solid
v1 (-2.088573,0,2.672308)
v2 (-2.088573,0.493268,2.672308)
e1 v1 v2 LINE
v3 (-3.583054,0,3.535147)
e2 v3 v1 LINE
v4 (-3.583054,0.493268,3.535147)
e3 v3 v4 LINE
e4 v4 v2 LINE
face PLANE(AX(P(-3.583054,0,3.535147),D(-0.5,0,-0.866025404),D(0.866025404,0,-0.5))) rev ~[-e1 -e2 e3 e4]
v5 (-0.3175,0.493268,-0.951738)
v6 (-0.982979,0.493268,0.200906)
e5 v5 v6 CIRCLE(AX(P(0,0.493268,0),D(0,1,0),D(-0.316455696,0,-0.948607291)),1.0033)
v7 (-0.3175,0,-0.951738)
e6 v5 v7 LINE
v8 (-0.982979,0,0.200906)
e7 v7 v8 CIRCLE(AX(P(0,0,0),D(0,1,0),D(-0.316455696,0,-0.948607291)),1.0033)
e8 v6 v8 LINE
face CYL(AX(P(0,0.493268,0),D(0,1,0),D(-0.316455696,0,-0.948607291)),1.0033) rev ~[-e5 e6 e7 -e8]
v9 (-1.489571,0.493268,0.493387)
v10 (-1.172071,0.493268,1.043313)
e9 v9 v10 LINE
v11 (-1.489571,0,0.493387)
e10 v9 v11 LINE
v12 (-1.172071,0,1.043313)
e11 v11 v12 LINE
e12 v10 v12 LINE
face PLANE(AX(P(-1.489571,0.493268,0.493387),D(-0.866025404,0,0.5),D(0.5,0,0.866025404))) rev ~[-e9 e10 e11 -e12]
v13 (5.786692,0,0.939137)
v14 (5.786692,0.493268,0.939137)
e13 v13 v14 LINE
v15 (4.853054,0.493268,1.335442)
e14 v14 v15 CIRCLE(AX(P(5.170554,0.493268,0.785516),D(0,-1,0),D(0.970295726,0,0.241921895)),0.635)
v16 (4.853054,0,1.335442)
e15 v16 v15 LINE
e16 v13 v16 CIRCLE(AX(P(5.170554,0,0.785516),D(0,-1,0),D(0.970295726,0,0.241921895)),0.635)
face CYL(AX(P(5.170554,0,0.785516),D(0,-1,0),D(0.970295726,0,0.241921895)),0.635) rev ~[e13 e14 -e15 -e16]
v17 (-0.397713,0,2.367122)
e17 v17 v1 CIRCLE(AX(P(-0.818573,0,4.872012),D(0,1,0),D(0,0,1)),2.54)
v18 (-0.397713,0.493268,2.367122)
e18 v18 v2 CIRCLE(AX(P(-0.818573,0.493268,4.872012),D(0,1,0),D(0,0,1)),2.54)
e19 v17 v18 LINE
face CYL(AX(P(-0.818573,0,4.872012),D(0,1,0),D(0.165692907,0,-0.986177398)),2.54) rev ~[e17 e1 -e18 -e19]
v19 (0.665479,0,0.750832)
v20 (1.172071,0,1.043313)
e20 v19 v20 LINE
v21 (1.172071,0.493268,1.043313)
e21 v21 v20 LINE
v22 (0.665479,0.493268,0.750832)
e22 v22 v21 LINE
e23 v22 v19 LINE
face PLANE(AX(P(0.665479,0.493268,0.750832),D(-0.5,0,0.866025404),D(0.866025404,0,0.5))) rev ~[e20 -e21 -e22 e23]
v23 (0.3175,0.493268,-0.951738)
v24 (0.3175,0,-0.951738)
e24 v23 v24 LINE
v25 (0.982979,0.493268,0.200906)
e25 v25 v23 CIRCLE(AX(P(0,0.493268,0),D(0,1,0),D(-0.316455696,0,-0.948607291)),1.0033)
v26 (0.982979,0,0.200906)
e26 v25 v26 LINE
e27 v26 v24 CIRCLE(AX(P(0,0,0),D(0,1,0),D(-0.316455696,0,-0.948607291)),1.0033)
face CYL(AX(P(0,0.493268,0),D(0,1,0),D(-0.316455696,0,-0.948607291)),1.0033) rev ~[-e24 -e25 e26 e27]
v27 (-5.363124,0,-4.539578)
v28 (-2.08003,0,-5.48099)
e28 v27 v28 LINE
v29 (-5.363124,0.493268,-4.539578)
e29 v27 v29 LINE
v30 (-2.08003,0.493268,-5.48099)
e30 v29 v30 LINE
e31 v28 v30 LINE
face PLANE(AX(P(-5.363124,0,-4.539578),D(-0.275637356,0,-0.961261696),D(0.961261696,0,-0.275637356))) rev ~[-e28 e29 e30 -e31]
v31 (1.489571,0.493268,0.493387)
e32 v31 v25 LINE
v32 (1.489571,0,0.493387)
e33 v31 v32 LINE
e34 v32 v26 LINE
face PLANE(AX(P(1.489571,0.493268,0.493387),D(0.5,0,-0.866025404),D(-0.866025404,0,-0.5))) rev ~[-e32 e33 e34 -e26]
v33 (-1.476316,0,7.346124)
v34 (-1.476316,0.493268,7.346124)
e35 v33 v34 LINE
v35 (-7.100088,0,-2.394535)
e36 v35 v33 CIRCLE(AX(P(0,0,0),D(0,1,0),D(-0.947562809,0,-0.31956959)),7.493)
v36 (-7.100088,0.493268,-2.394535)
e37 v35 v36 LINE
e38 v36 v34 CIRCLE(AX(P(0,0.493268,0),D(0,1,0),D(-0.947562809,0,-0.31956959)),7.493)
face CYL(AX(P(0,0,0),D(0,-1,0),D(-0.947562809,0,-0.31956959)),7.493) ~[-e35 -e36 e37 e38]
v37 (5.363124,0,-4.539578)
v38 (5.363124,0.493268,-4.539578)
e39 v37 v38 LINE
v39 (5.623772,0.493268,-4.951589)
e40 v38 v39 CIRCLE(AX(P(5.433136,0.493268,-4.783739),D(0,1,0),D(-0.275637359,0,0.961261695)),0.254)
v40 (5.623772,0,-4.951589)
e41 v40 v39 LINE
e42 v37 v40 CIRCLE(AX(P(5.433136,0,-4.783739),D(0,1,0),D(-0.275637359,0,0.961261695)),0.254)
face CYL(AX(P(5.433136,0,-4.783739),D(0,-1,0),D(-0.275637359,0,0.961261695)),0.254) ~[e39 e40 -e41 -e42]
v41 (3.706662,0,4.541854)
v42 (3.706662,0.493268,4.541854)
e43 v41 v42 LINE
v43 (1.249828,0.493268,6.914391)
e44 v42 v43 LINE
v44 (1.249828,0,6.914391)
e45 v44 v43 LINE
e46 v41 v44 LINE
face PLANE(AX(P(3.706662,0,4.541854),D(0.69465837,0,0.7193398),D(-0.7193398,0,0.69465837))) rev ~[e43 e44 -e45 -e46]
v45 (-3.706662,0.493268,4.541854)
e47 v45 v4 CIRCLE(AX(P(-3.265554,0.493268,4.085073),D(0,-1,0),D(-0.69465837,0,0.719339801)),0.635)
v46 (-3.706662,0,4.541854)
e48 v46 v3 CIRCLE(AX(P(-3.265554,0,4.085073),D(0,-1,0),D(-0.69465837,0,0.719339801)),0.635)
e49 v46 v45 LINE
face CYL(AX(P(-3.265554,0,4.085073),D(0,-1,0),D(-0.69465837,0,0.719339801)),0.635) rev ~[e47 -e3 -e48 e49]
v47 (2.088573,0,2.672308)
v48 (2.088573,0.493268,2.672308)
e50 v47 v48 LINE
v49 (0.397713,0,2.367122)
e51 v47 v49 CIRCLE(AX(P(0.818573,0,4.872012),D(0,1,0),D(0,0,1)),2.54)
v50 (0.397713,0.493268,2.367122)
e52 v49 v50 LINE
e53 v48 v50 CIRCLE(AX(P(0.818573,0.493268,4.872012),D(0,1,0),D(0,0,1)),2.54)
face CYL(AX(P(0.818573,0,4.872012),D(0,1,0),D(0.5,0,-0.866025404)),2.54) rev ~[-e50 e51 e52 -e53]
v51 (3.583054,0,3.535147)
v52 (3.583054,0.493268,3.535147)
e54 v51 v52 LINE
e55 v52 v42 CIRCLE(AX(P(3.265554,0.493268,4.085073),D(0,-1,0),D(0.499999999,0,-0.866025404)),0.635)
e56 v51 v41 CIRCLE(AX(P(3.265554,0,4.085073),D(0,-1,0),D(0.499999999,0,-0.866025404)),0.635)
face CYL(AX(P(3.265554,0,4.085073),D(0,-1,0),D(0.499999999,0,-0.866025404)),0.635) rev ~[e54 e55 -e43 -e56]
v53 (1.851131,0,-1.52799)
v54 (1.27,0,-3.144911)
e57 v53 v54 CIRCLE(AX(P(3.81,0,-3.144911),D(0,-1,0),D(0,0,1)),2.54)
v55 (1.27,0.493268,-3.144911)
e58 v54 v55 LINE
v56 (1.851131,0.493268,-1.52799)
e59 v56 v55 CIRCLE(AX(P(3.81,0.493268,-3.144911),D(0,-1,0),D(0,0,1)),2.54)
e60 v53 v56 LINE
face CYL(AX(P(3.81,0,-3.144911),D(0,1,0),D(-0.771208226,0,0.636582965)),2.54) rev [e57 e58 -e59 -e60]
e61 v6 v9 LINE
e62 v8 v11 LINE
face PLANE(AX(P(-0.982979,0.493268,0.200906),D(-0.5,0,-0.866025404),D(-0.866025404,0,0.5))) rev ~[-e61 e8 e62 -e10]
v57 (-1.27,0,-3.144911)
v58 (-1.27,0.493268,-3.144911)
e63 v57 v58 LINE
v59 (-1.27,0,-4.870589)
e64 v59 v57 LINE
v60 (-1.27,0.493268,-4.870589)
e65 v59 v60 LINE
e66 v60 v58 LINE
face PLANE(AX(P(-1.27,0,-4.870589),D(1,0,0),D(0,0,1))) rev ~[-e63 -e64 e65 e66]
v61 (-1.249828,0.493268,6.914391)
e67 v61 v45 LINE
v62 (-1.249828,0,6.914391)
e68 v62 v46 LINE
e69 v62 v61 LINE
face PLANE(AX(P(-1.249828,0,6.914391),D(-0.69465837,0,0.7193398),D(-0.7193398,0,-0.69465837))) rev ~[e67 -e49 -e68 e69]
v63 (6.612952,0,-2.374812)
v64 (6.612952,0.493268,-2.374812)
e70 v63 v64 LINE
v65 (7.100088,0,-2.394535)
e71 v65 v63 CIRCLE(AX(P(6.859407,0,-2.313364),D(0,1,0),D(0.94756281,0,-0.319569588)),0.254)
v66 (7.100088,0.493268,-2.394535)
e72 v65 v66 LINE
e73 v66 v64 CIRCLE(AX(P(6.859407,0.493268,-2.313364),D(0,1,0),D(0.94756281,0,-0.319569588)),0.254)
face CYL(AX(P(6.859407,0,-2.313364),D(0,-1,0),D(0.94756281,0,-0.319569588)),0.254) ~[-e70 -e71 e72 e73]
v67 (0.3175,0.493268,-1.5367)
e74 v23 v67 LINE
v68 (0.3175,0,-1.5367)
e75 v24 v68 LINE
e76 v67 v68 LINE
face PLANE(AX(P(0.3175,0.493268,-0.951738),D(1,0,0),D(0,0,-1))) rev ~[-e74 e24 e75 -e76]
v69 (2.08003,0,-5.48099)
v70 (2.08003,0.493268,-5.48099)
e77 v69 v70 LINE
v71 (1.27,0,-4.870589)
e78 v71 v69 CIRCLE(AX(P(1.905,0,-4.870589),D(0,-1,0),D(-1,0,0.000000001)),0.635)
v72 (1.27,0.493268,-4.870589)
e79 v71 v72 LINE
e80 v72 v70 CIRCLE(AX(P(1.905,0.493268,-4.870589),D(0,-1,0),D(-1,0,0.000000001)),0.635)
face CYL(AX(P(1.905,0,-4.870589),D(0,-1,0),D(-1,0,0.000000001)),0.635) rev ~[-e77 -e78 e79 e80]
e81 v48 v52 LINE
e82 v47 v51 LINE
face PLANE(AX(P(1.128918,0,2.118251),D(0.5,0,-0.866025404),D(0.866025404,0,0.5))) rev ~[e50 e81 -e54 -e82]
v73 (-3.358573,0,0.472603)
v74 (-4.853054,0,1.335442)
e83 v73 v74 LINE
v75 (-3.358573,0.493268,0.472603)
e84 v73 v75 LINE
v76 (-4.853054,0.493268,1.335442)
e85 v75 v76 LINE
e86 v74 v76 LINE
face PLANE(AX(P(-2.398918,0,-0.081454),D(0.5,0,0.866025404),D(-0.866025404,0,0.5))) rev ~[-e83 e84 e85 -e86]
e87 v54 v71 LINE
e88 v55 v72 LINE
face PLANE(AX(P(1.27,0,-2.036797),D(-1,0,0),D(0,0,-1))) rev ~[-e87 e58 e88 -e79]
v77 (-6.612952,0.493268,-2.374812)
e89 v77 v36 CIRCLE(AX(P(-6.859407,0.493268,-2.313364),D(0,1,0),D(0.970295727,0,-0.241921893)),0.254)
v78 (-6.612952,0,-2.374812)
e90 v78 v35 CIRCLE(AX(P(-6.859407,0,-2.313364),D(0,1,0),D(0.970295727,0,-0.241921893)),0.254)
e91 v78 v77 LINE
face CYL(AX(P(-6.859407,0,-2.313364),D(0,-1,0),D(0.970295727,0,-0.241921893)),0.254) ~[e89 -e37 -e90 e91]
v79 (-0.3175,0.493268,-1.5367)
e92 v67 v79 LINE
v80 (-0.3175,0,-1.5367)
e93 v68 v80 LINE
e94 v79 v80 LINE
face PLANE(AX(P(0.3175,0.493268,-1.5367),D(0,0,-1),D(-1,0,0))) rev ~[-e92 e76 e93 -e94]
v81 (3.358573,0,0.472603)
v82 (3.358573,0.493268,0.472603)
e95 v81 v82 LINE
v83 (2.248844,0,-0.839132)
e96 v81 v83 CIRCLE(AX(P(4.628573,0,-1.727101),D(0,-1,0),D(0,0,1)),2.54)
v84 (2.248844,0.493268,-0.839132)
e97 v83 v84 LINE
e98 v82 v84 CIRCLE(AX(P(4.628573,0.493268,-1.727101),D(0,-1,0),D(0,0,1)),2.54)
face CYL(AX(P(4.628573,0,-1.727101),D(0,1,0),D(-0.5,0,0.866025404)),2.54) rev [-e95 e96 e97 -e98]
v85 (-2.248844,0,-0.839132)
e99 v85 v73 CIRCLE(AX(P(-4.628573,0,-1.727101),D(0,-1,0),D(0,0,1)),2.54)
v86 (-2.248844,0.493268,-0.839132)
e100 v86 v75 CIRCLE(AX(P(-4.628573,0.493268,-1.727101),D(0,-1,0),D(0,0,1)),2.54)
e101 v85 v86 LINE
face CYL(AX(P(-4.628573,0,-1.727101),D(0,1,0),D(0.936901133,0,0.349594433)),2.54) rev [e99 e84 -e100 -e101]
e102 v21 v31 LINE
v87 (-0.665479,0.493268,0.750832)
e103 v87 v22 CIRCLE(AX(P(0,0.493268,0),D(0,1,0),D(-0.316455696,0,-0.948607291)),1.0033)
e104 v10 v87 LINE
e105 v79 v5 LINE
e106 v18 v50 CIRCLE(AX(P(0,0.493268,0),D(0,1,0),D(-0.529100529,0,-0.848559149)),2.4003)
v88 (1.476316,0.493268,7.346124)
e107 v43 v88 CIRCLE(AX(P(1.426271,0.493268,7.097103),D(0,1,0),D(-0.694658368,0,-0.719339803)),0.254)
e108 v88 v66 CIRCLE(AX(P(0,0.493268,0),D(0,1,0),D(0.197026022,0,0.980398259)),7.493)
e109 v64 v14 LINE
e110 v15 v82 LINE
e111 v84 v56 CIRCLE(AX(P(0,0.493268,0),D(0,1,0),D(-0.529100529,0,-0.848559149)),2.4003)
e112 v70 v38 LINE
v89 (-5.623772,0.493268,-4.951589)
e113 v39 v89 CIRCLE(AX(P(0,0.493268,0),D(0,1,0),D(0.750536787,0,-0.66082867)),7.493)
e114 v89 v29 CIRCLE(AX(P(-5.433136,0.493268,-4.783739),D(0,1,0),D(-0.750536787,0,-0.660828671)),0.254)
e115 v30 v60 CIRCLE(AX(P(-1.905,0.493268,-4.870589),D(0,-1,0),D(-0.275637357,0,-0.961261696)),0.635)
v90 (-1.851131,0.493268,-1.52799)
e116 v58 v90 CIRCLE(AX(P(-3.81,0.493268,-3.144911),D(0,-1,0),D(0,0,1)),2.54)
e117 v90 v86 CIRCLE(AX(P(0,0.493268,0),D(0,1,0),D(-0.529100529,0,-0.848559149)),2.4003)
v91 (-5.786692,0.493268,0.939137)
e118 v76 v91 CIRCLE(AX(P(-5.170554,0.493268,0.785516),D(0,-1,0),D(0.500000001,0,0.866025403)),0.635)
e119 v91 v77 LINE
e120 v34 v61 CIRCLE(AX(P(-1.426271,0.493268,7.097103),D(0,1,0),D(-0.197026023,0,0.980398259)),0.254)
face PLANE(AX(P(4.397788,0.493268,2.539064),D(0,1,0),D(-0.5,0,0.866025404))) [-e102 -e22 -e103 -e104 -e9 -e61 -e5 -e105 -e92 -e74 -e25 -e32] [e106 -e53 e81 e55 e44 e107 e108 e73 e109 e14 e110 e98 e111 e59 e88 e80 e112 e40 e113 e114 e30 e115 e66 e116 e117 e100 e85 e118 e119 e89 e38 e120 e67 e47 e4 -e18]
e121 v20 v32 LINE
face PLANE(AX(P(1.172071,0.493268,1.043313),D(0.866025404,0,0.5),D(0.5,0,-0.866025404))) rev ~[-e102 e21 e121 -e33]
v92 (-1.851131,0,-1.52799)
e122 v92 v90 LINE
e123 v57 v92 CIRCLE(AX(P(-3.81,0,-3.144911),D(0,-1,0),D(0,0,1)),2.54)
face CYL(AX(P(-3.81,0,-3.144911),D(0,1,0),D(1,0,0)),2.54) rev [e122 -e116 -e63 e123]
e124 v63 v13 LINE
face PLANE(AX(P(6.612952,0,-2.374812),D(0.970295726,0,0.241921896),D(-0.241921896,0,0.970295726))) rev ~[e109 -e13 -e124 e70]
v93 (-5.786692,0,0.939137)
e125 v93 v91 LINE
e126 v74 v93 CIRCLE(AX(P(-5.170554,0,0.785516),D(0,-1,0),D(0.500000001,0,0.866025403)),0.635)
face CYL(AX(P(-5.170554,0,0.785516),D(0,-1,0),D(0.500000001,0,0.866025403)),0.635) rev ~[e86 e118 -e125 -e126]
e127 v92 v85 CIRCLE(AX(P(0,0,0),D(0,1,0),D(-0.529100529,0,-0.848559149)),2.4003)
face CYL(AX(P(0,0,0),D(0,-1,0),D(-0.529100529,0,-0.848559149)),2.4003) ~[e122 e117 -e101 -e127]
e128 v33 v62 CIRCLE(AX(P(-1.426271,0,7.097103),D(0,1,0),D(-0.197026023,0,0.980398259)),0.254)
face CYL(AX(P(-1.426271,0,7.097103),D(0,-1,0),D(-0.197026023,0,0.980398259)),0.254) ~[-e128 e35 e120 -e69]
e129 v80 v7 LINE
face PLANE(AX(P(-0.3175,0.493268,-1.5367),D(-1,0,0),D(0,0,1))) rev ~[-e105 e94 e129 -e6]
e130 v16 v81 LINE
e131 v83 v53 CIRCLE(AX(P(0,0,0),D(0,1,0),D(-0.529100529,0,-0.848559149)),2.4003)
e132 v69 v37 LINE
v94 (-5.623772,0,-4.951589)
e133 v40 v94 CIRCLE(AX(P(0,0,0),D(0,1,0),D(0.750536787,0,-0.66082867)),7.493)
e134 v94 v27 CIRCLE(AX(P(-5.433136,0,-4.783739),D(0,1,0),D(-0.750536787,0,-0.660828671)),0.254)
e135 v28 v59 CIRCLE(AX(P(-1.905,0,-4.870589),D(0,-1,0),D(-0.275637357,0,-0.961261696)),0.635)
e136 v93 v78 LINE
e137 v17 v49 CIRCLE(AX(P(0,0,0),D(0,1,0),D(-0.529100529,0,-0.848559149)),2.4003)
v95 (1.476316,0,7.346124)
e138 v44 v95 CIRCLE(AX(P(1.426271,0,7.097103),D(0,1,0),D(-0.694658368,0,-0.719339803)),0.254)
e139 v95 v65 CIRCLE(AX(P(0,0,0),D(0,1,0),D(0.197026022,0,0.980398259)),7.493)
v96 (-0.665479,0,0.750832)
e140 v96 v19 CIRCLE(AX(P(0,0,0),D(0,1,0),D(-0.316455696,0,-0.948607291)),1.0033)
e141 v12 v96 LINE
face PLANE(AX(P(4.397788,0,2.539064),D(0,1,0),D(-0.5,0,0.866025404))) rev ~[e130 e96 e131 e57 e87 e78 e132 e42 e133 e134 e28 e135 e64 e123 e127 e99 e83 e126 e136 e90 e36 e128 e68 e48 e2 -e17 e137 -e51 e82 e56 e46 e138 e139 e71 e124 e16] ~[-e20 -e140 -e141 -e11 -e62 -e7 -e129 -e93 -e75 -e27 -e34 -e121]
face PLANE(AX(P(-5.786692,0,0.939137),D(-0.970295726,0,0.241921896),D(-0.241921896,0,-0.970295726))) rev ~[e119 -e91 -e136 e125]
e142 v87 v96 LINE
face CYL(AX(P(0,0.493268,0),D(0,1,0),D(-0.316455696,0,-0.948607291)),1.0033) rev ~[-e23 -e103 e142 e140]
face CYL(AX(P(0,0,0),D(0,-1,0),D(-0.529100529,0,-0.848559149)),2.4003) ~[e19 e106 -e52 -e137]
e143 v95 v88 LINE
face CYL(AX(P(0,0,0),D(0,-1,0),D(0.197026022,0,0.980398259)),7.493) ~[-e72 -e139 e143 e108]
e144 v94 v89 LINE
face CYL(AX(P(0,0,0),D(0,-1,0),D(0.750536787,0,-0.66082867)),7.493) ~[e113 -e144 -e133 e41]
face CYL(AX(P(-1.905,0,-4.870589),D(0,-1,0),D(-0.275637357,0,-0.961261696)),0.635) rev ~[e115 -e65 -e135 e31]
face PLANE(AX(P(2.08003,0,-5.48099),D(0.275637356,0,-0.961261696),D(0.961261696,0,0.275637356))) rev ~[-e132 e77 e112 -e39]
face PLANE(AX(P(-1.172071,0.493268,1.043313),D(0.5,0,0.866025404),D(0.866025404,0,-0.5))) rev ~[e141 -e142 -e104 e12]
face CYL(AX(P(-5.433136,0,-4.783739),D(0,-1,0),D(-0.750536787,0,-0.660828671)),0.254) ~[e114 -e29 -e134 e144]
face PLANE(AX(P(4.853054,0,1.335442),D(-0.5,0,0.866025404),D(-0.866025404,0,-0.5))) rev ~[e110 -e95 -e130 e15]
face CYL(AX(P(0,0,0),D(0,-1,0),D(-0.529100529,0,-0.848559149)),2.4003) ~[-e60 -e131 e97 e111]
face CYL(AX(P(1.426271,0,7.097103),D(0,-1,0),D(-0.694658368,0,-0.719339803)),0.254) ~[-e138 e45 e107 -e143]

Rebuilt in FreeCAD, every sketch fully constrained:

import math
import FreeCAD as App
import Part
import Sketcher
Q = App.Units.Quantity


def edges_at(feature, points):
    """Names of the edges that pass closest to the given points."""
    edges = feature.Shape.Edges
    near = lambda p: min(range(len(edges)), key=lambda i: edges[i].distToShape(Part.Vertex(*p))[0])
    return sorted({f"Edge{near(p) + 1}" for p in points})

doc = App.newDocument("Part")
params = doc.addObject("Spreadsheet::Sheet", "Params")
for row, (alias, value) in enumerate([
    ("sketch1_radius", "0.01 in"),
    ("sketch1_radius2", "0.025 in"),
    ("sketch1_radius3", "0.295 in"),
    ("pad1_length", "0.493268 mm"),
    ("sketch2_width", "0.025 in"),
    ("fillet_radius", "0.1 in"),
], start=1):
    params.set(f"A{row}", alias)
    params.set(f"B{row}", "=" + value)
    params.setAlias(f"B{row}", alias)

body = doc.addObject("PartDesign::Body", "Body")

# Sketch on XZ plane
sketch1 = body.newObject("Sketcher::SketchObject", "Sketch")
sketch1.AttachmentSupport = (doc.getObject("XZ_Plane"), [""])
sketch1.MapMode = "FlatFace"
sketch1.addGeometry(Part.ArcOfCircle(Part.Circle(App.Vector(-1.905, -4.870589, 0), App.Vector(0, 0, 1), 0.635), math.radians(-106), math.radians(0)), False)
sketch1.addGeometry(Part.LineSegment(App.Vector(-1.27, -4.870589, 0), App.Vector(-1.27, -2.036797, 0)), False)
sketch1.addGeometry(Part.ArcOfCircle(Part.Circle(App.Vector(0, 0, 0), App.Vector(0, 0, 1), 2.4003), math.radians(-58.055299), math.radians(238.055299)), False)
sketch1.addGeometry(Part.LineSegment(App.Vector(1.27, -2.036797, 0), App.Vector(1.27, -4.870589, 0)), False)
sketch1.addGeometry(Part.ArcOfCircle(Part.Circle(App.Vector(1.905, -4.870589, 0), App.Vector(0, 0, 1), 0.635), math.radians(180), math.radians(286)), False)
sketch1.addGeometry(Part.LineSegment(App.Vector(2.08003, -5.48099, 0), App.Vector(5.363124, -4.539578, 0)), False)
sketch1.addGeometry(Part.ArcOfCircle(Part.Circle(App.Vector(5.433136, -4.783739, 0), App.Vector(0, 0, 1), 0.254), math.radians(-41.363102), math.radians(106)), False)
sketch1.addGeometry(Part.ArcOfCircle(Part.Circle(App.Vector(0, 0, 0), App.Vector(0, 0, 1), 7.493), math.radians(-138.636897), math.radians(-41.363103)), False)
sketch1.addGeometry(Part.ArcOfCircle(Part.Circle(App.Vector(-5.433136, -4.783739, 0), App.Vector(0, 0, 1), 0.254), math.radians(74), math.radians(221.363102)), False)
sketch1.addGeometry(Part.LineSegment(App.Vector(-5.363124, -4.539578, 0), App.Vector(-2.08003, -5.48099, 0)), False)
sketch1.addConstraint(Sketcher.Constraint("Tangent", 0, 2, 1, 1))
sketch1.addConstraint(Sketcher.Constraint("Coincident", 1, 2, 2, 2))
sketch1.addConstraint(Sketcher.Constraint("Coincident", 2, 1, 3, 1))
sketch1.addConstraint(Sketcher.Constraint("Tangent", 3, 2, 4, 1))
sketch1.addConstraint(Sketcher.Constraint("Tangent", 4, 2, 5, 1))
sketch1.addConstraint(Sketcher.Constraint("Tangent", 5, 2, 6, 2))
sketch1.addConstraint(Sketcher.Constraint("Tangent", 6, 1, 7, 2))
sketch1.addConstraint(Sketcher.Constraint("Tangent", 7, 1, 8, 2))
sketch1.addConstraint(Sketcher.Constraint("Tangent", 8, 1, 9, 1))
sketch1.addConstraint(Sketcher.Constraint("Tangent", 9, 2, 0, 1))
sketch1.addConstraint(Sketcher.Constraint("Vertical", 1))
sketch1.addConstraint(Sketcher.Constraint("Vertical", 3))
sketch1.addConstraint(Sketcher.Constraint("Coincident", 2, 3, -1, 1))
sketch1.addConstraint(Sketcher.Constraint("Coincident", 7, 3, -1, 1))
sketch1.addConstraint(Sketcher.Constraint("Equal", 0, 4))
sketch1.addConstraint(Sketcher.Constraint("Equal", 6, 8))
sketch1.addConstraint(Sketcher.Constraint("Symmetric", 0, 3, 4, 3, -2))
sketch1.addConstraint(Sketcher.Constraint("Horizontal", 6, 3, 8, 3))
sketch1.addConstraint(Sketcher.Constraint("Radius", 6, Q("0.01 in")))
sketch1.addConstraint(Sketcher.Constraint("Angle", 5, Q("16 deg")))
sketch1.addConstraint(Sketcher.Constraint("Radius", 0, Q("0.025 in")))
sketch1.addConstraint(Sketcher.Constraint("Radius", 7, Q("0.295 in")))
sketch1.addConstraint(Sketcher.Constraint("Radius", 2, Q("0.0945 in")))
sketch1.addConstraint(Sketcher.Constraint("DistanceX", 1, 2, 2, 1, Q("0.1 in")))
sketch1.addConstraint(Sketcher.Constraint("Distance", 5, 3.415401))
sketch1.setExpression("Constraints[18]", "Params.sketch1_radius")
sketch1.setExpression("Constraints[20]", "Params.sketch1_radius2")
sketch1.setExpression("Constraints[21]", "Params.sketch1_radius3")
pad1 = body.newObject("PartDesign::Pad", "Pad")
pad1.Profile = sketch1
pad1.setExpression("Length", "Params.pad1_length")
pad1.Reversed = True
doc.recompute()

polarpattern = body.newObject("PartDesign::PolarPattern", "PolarPattern")
polarpattern.Originals = [pad1]
polarpattern.Axis = (doc.getObject("Y_Axis"), [""])
polarpattern.Angle = 360
polarpattern.Occurrences = 3
body.Tip = polarpattern

# Sketch on XZ plane
sketch2 = body.newObject("Sketcher::SketchObject", "Sketch001")
sketch2.AttachmentSupport = (doc.getObject("XZ_Plane"), [""])
sketch2.MapMode = "FlatFace"
sketch2.AttachmentOffset = App.Placement(App.Vector(0, 0, -0.493268), App.Rotation())
sketch2.addGeometry(Part.LineSegment(App.Vector(0.3175, -0.951738, 0), App.Vector(0.3175, -1.5367, 0)), False)
sketch2.addGeometry(Part.LineSegment(App.Vector(0.3175, -1.5367, 0), App.Vector(-0.3175, -1.5367, 0)), False)
sketch2.addGeometry(Part.LineSegment(App.Vector(-0.3175, -1.5367, 0), App.Vector(-0.3175, -0.951738, 0)), False)
sketch2.addGeometry(Part.ArcOfCircle(Part.Circle(App.Vector(0, 0, 0), App.Vector(0, 0, 1), 1.0033), math.radians(-71.551285), math.radians(251.551285)), False)
sketch2.addConstraint(Sketcher.Constraint("Coincident", 0, 2, 1, 1))
sketch2.addConstraint(Sketcher.Constraint("Coincident", 1, 2, 2, 1))
sketch2.addConstraint(Sketcher.Constraint("Coincident", 2, 2, 3, 2))
sketch2.addConstraint(Sketcher.Constraint("Coincident", 3, 1, 0, 1))
sketch2.addConstraint(Sketcher.Constraint("Vertical", 0))
sketch2.addConstraint(Sketcher.Constraint("Horizontal", 1))
sketch2.addConstraint(Sketcher.Constraint("Vertical", 2))
sketch2.addConstraint(Sketcher.Constraint("Coincident", 3, 3, -1, 1))
sketch2.addConstraint(Sketcher.Constraint("Horizontal", 2, 2, 3, 1))
sketch2.addConstraint(Sketcher.Constraint("Radius", 3, Q("0.0395 in")))
sketch2.addConstraint(Sketcher.Constraint("DistanceX", 1, 2, 1, 1, Q("0.025 in")))
sketch2.addConstraint(Sketcher.Constraint("DistanceY", 0, 2, -1, 1, Q("0.0605 in")))
sketch2.setExpression("Constraints[10]", "Params.sketch2_width")
pocket1 = body.newObject("PartDesign::Pocket", "Pocket")
pocket1.Profile = sketch2
pocket1.Type = "ThroughAll"
pocket1.Reversed = True
doc.recompute()

polarpattern2 = body.newObject("PartDesign::PolarPattern", "PolarPattern001")
polarpattern2.Originals = [pocket1]
polarpattern2.Axis = (doc.getObject("Y_Axis"), [""])
polarpattern2.Angle = 360
polarpattern2.Occurrences = 3
body.Tip = polarpattern2
doc.recompute()

fillet = body.newObject("PartDesign::Fillet", "Fillet")
fillet.Base = (polarpattern2, edges_at(polarpattern2, [
    (1.27, 0.247, -2.037),
    (-1.27, 0.247, -2.037),
    (2.399, 0.247, -0.081),
    (-1.129, 0.247, 2.118),
    (-2.399, 0.247, -0.081),
    (1.129, 0.247, 2.118),
]))
fillet.setExpression("Radius", "Params.fillet_radius")

doc.recompute()
